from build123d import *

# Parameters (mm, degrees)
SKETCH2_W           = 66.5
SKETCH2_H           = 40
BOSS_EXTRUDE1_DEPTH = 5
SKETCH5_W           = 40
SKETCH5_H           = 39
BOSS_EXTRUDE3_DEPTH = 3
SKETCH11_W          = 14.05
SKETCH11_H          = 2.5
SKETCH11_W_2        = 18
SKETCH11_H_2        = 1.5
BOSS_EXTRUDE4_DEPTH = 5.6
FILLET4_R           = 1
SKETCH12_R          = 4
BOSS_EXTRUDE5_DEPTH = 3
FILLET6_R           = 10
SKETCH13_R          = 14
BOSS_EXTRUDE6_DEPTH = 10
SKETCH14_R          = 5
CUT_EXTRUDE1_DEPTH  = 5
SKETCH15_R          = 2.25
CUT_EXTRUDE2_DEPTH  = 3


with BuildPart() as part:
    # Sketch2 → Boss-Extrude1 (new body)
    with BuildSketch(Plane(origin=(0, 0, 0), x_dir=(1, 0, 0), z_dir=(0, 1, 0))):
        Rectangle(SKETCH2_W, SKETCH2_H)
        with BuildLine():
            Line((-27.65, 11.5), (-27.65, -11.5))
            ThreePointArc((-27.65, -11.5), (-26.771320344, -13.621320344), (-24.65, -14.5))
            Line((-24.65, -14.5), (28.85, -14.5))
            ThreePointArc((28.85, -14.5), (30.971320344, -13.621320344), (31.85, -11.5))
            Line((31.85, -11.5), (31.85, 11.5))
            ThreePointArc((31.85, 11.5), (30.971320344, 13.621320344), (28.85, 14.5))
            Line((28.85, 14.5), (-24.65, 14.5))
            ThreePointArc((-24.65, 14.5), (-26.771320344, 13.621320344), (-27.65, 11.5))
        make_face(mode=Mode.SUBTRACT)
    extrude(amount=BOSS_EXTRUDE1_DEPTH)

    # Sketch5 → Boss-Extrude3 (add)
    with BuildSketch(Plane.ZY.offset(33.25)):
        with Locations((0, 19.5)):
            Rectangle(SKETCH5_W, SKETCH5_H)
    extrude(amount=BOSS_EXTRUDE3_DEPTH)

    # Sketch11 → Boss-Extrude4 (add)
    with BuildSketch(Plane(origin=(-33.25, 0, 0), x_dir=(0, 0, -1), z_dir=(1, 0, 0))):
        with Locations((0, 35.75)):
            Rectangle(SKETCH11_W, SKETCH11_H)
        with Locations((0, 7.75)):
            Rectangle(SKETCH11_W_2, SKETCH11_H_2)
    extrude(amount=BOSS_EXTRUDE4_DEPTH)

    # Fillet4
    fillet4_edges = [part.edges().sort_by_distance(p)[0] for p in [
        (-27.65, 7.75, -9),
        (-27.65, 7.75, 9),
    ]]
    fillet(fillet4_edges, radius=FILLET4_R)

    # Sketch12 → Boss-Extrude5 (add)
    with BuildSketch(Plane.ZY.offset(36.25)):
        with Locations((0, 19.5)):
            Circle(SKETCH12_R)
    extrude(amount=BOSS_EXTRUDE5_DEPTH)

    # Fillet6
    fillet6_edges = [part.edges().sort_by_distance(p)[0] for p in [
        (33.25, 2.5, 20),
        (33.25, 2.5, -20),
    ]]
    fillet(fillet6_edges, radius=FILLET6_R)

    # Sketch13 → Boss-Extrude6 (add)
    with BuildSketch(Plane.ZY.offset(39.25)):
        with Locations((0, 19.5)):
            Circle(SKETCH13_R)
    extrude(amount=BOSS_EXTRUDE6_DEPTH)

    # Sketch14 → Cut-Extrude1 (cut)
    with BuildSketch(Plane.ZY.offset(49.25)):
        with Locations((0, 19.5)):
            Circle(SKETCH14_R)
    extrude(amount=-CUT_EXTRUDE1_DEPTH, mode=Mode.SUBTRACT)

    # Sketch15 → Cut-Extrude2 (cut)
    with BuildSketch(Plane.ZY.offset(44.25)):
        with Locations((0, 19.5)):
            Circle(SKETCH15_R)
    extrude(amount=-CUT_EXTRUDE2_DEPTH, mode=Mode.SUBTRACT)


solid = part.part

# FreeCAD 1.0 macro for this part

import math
import FreeCAD as App
import Part
import Sketcher
from FreeCAD import Vector
Q = App.Units.Quantity


def edges_at(feature, points):
    """Names of the edges that pass closest to the given points."""
    edges = feature.Shape.Edges
    near = lambda p: min(range(len(edges)), key=lambda i: edges[i].distToShape(Part.Vertex(*p))[0])
    return sorted({f"Edge{near(p) + 1}" for p in points})

doc = App.newDocument("Part")
body = doc.addObject("PartDesign::Body", "Body")

sketch1 = body.newObject("Sketcher::SketchObject", "Sketch")
sketch1.AttachmentSupport = (doc.getObject("XZ_Plane"), [""])
sketch1.MapMode = "FlatFace"
sketch1.addGeometry([
    Part.LineSegment(Vector(-33.2, -20, 0), Vector(-33.2, 20, 0)),
    Part.LineSegment(Vector(-33.2, 20, 0), Vector(33.2, 20, 0)),
    Part.LineSegment(Vector(33.2, 20, 0), Vector(33.2, -20, 0)),
    Part.LineSegment(Vector(33.2, -20, 0), Vector(-33.2, -20, 0)),
    Part.LineSegment(Vector(-27.6, 11.5, 0), Vector(-27.6, -11.5, 0)),
    Part.ArcOfCircle(Part.Circle(Vector(-24.7, -11.5, 0), Vector(0, 0, 1), 3), math.radians(180), math.radians(270)),
    Part.LineSegment(Vector(-24.6, -14.5, 0), Vector(28.9, -14.5, 0)),
    Part.ArcOfCircle(Part.Circle(Vector(28.9, -11.5, 0), Vector(0, 0, 1), 3), math.radians(-90), math.radians(0)),
    Part.LineSegment(Vector(31.9, -11.5, 0), Vector(31.9, 11.5, 0)),
    Part.ArcOfCircle(Part.Circle(Vector(28.9, 11.5, 0), Vector(0, 0, 1), 3), math.radians(0), math.radians(90)),
    Part.LineSegment(Vector(28.9, 14.5, 0), Vector(-24.6, 14.5, 0)),
    Part.ArcOfCircle(Part.Circle(Vector(-24.7, 11.5, 0), Vector(0, 0, 1), 3), math.radians(90), math.radians(180)),
], False)
sketch1.addConstraint([
    Sketcher.Constraint("Coincident", 0, 2, 1, 1),
    Sketcher.Constraint("Coincident", 1, 2, 2, 1),
    Sketcher.Constraint("Coincident", 2, 2, 3, 1),
    Sketcher.Constraint("Coincident", 3, 2, 0, 1),
    Sketcher.Constraint("Tangent", 4, 2, 5, 1),
    Sketcher.Constraint("Tangent", 5, 2, 6, 1),
    Sketcher.Constraint("Tangent", 6, 2, 7, 1),
    Sketcher.Constraint("Tangent", 7, 2, 8, 1),
    Sketcher.Constraint("Tangent", 8, 2, 9, 1),
    Sketcher.Constraint("Tangent", 9, 2, 10, 1),
    Sketcher.Constraint("Tangent", 10, 2, 11, 1),
    Sketcher.Constraint("Tangent", 11, 2, 4, 1),
    Sketcher.Constraint("Vertical", 0),
    Sketcher.Constraint("Horizontal", 1),
    Sketcher.Constraint("Vertical", 2),
    Sketcher.Constraint("Horizontal", 3),
    Sketcher.Constraint("Vertical", 4),
    Sketcher.Constraint("Horizontal", 6),
    Sketcher.Constraint("Vertical", 8),
    Sketcher.Constraint("Horizontal", 10),
    Sketcher.Constraint("Equal", 5, 7),
    Sketcher.Constraint("Equal", 7, 9),
    Sketcher.Constraint("Equal", 9, 11),
    Sketcher.Constraint("Symmetric", 0, 2, 2, 2, -1, 1),
    Sketcher.Constraint("Radius", 5, Q("3 mm")),
    Sketcher.Constraint("DistanceY", 0, 1, 0, 2, Q("40 mm")),
    Sketcher.Constraint("DistanceY", 4, 2, 4, 1, Q("23 mm")),
    Sketcher.Constraint("DistanceX", 1, 1, 1, 2, Q("66.5 mm")),
    Sketcher.Constraint("DistanceX", 6, 1, 6, 2, Q("53.5 mm")),
    Sketcher.Constraint("DistanceY", 5, 3, -1, 1, Q("11.5 mm")),
    Sketcher.Constraint("DistanceX", 0, 2, 11, 3, Q("8.6 mm")),
])
pad1 = body.newObject("PartDesign::Pad", "Pad")
pad1.Profile = sketch1
pad1.Length = 5
pad1.Reversed = True

sketch2 = body.newObject("Sketcher::SketchObject", "Sketch001")
sketch2.AttachmentSupport = (doc.getObject("YZ_Plane"), [""])
sketch2.MapMode = "FlatFace"
sketch2.AttachmentOffset = App.Placement(Vector(0, 0, -33.25), App.Rotation())
sketch2.addGeometry([
    Part.LineSegment(Vector(39, -20, 0), Vector(0, -20, 0)),
    Part.LineSegment(Vector(0, -20, 0), Vector(0, 20, 0)),
    Part.LineSegment(Vector(0, 20, 0), Vector(39, 20, 0)),
    Part.LineSegment(Vector(39, 20, 0), Vector(39, -20, 0)),
], False)
sketch2.addConstraint([
    Sketcher.Constraint("Coincident", 0, 2, 1, 1),
    Sketcher.Constraint("Coincident", 1, 2, 2, 1),
    Sketcher.Constraint("Coincident", 2, 2, 3, 1),
    Sketcher.Constraint("Coincident", 3, 2, 0, 1),
    Sketcher.Constraint("Horizontal", 0),
    Sketcher.Constraint("Vertical", 1),
    Sketcher.Constraint("Horizontal", 2),
    Sketcher.Constraint("Vertical", 3),
    Sketcher.Constraint("Symmetric", 0, 2, 1, 2, -1, 1),
    Sketcher.Constraint("DistanceX", 0, 2, 0, 1, Q("39 mm")),
    Sketcher.Constraint("DistanceY", 1, 1, 1, 2, Q("40 mm")),
])
pad2 = body.newObject("PartDesign::Pad", "Pad001")
pad2.Profile = sketch2
pad2.Length = 3
pad2.Reversed = True

sketch3 = body.newObject("Sketcher::SketchObject", "Sketch002")
sketch3.AttachmentSupport = (doc.getObject("YZ_Plane"), [""])
sketch3.MapMode = "FlatFace"
sketch3.AttachmentOffset = App.Placement(Vector(0, 0, -33.25), App.Rotation())
sketch3.addGeometry([
    Part.LineSegment(Vector(37, 7, 0), Vector(34.5, 7, 0)),
    Part.LineSegment(Vector(34.5, 7, 0), Vector(34.5, -7, 0)),
    Part.LineSegment(Vector(34.5, -7, 0), Vector(37, -7, 0)),
    Part.LineSegment(Vector(37, -7, 0), Vector(37, 7, 0)),
    Part.LineSegment(Vector(8.5, 9, 0), Vector(7, 9, 0)),
    Part.LineSegment(Vector(7, 9, 0), Vector(7, -9, 0)),
    Part.LineSegment(Vector(7, -9, 0), Vector(8.5, -9, 0)),
    Part.LineSegment(Vector(8.5, -9, 0), Vector(8.5, 9, 0)),
], False)
sketch3.addConstraint([
    Sketcher.Constraint("Coincident", 0, 2, 1, 1),
    Sketcher.Constraint("Coincident", 1, 2, 2, 1),
    Sketcher.Constraint("Coincident", 2, 2, 3, 1),
    Sketcher.Constraint("Coincident", 3, 2, 0, 1),
    Sketcher.Constraint("Coincident", 4, 2, 5, 1),
    Sketcher.Constraint("Coincident", 5, 2, 6, 1),
    Sketcher.Constraint("Coincident", 6, 2, 7, 1),
    Sketcher.Constraint("Coincident", 7, 2, 4, 1),
    Sketcher.Constraint("Horizontal", 0),
    Sketcher.Constraint("Vertical", 1),
    Sketcher.Constraint("Horizontal", 2),
    Sketcher.Constraint("Vertical", 3),
    Sketcher.Constraint("Horizontal", 4),
    Sketcher.Constraint("Vertical", 5),
    Sketcher.Constraint("Horizontal", 6),
    Sketcher.Constraint("Vertical", 7),
    Sketcher.Constraint("DistanceY", 5, 2, 5, 1, Q("18 mm")),
    Sketcher.Constraint("DistanceX", 0, 2, 0, 1, Q("2.5 mm")),
    Sketcher.Constraint("DistanceX", 4, 2, 4, 1, Q("1.5 mm")),
    Sketcher.Constraint("DistanceX", -1, 1, 2, 2, Q("37 mm")),
    Sketcher.Constraint("DistanceX", -1, 1, 4, 2, Q("7 mm")),
    Sketcher.Constraint("DistanceY", -1, 1, 4, 2, Q("9 mm")),
    Sketcher.Constraint("DistanceY", 1, 2, 1, 1, Q("14.05 mm")),
    Sketcher.Constraint("DistanceY", -1, 1, 0, 2, Q("7.025 mm")),
])
pad3 = body.newObject("PartDesign::Pad", "Pad002")
pad3.Profile = sketch3
pad3.Length = 5.6
doc.recompute()

fillet = body.newObject("PartDesign::Fillet", "Fillet")
fillet.Base = (pad3, edges_at(pad3, [(-27.65, 7.75, -9), (-27.65, 7.75, 9)]))
fillet.Radius = 1

sketch4 = body.newObject("Sketcher::SketchObject", "Sketch003")
sketch4.AttachmentSupport = (doc.getObject("YZ_Plane"), [""])
sketch4.MapMode = "FlatFace"
sketch4.AttachmentOffset = App.Placement(Vector(0, 0, -36.25), App.Rotation())
sketch4.addGeometry(Part.Circle(Vector(19.5, 0, 0), Vector(0, 0, 1), 4), False)
sketch4.addConstraint([
    Sketcher.Constraint("PointOnObject", 0, 3, -1),
    Sketcher.Constraint("Diameter", 0, Q("8 mm")),
    Sketcher.Constraint("DistanceX", -1, 1, 0, 3, Q("19.5 mm")),
])
pad4 = body.newObject("PartDesign::Pad", "Pad003")
pad4.Profile = sketch4
pad4.Length = 3
pad4.Reversed = True
doc.recompute()

fillet2 = body.newObject("PartDesign::Fillet", "Fillet001")
fillet2.Base = (pad4, edges_at(pad4, [(33.25, 2.5, 20), (33.25, 2.5, -20)]))
fillet2.Radius = 10

sketch5 = body.newObject("Sketcher::SketchObject", "Sketch004")
sketch5.AttachmentSupport = (doc.getObject("YZ_Plane"), [""])
sketch5.MapMode = "FlatFace"
sketch5.AttachmentOffset = App.Placement(Vector(0, 0, -39.25), App.Rotation())
sketch5.addGeometry(Part.Circle(Vector(20, 0, 0), Vector(0, 0, 1), 14), False)
sketch5.addConstraint([
    Sketcher.Constraint("PointOnObject", 0, 3, -1),
    Sketcher.Constraint("Diameter", 0, Q("28 mm")),
    Sketcher.Constraint("DistanceX", -1, 1, 0, 3, Q("19.5 mm")),
])
pad5 = body.newObject("PartDesign::Pad", "Pad004")
pad5.Profile = sketch5
pad5.Length = 10
pad5.Reversed = True

sketch6 = body.newObject("Sketcher::SketchObject", "Sketch005")
sketch6.AttachmentSupport = (doc.getObject("YZ_Plane"), [""])
sketch6.MapMode = "FlatFace"
sketch6.AttachmentOffset = App.Placement(Vector(0, 0, -49.25), App.Rotation())
sketch6.addGeometry(Part.Circle(Vector(20, 0, 0), Vector(0, 0, 1), 5), False)
sketch6.addConstraint([
    Sketcher.Constraint("PointOnObject", 0, 3, -1),
    Sketcher.Constraint("Diameter", 0, Q("10 mm")),
    Sketcher.Constraint("DistanceX", -1, 1, 0, 3, Q("19.5 mm")),
])
pocket1 = body.newObject("PartDesign::Pocket", "Pocket")
pocket1.Profile = sketch6
pocket1.Length = 5
pocket1.Reversed = True

sketch7 = body.newObject("Sketcher::SketchObject", "Sketch006")
sketch7.AttachmentSupport = (doc.getObject("YZ_Plane"), [""])
sketch7.MapMode = "FlatFace"
sketch7.AttachmentOffset = App.Placement(Vector(0, 0, -44.25), App.Rotation())
sketch7.addGeometry(Part.Circle(Vector(19.5, 0, 0), Vector(0, 0, 1), 2.2), False)
sketch7.addConstraint([
    Sketcher.Constraint("PointOnObject", 0, 3, -1),
    Sketcher.Constraint("Diameter", 0, Q("4.5 mm")),
    Sketcher.Constraint("DistanceX", -1, 1, 0, 3, Q("19.5 mm")),
])
pocket2 = body.newObject("PartDesign::Pocket", "Pocket001")
pocket2.Profile = sketch7
pocket2.Length = 3
pocket2.Reversed = True

doc.recompute()
